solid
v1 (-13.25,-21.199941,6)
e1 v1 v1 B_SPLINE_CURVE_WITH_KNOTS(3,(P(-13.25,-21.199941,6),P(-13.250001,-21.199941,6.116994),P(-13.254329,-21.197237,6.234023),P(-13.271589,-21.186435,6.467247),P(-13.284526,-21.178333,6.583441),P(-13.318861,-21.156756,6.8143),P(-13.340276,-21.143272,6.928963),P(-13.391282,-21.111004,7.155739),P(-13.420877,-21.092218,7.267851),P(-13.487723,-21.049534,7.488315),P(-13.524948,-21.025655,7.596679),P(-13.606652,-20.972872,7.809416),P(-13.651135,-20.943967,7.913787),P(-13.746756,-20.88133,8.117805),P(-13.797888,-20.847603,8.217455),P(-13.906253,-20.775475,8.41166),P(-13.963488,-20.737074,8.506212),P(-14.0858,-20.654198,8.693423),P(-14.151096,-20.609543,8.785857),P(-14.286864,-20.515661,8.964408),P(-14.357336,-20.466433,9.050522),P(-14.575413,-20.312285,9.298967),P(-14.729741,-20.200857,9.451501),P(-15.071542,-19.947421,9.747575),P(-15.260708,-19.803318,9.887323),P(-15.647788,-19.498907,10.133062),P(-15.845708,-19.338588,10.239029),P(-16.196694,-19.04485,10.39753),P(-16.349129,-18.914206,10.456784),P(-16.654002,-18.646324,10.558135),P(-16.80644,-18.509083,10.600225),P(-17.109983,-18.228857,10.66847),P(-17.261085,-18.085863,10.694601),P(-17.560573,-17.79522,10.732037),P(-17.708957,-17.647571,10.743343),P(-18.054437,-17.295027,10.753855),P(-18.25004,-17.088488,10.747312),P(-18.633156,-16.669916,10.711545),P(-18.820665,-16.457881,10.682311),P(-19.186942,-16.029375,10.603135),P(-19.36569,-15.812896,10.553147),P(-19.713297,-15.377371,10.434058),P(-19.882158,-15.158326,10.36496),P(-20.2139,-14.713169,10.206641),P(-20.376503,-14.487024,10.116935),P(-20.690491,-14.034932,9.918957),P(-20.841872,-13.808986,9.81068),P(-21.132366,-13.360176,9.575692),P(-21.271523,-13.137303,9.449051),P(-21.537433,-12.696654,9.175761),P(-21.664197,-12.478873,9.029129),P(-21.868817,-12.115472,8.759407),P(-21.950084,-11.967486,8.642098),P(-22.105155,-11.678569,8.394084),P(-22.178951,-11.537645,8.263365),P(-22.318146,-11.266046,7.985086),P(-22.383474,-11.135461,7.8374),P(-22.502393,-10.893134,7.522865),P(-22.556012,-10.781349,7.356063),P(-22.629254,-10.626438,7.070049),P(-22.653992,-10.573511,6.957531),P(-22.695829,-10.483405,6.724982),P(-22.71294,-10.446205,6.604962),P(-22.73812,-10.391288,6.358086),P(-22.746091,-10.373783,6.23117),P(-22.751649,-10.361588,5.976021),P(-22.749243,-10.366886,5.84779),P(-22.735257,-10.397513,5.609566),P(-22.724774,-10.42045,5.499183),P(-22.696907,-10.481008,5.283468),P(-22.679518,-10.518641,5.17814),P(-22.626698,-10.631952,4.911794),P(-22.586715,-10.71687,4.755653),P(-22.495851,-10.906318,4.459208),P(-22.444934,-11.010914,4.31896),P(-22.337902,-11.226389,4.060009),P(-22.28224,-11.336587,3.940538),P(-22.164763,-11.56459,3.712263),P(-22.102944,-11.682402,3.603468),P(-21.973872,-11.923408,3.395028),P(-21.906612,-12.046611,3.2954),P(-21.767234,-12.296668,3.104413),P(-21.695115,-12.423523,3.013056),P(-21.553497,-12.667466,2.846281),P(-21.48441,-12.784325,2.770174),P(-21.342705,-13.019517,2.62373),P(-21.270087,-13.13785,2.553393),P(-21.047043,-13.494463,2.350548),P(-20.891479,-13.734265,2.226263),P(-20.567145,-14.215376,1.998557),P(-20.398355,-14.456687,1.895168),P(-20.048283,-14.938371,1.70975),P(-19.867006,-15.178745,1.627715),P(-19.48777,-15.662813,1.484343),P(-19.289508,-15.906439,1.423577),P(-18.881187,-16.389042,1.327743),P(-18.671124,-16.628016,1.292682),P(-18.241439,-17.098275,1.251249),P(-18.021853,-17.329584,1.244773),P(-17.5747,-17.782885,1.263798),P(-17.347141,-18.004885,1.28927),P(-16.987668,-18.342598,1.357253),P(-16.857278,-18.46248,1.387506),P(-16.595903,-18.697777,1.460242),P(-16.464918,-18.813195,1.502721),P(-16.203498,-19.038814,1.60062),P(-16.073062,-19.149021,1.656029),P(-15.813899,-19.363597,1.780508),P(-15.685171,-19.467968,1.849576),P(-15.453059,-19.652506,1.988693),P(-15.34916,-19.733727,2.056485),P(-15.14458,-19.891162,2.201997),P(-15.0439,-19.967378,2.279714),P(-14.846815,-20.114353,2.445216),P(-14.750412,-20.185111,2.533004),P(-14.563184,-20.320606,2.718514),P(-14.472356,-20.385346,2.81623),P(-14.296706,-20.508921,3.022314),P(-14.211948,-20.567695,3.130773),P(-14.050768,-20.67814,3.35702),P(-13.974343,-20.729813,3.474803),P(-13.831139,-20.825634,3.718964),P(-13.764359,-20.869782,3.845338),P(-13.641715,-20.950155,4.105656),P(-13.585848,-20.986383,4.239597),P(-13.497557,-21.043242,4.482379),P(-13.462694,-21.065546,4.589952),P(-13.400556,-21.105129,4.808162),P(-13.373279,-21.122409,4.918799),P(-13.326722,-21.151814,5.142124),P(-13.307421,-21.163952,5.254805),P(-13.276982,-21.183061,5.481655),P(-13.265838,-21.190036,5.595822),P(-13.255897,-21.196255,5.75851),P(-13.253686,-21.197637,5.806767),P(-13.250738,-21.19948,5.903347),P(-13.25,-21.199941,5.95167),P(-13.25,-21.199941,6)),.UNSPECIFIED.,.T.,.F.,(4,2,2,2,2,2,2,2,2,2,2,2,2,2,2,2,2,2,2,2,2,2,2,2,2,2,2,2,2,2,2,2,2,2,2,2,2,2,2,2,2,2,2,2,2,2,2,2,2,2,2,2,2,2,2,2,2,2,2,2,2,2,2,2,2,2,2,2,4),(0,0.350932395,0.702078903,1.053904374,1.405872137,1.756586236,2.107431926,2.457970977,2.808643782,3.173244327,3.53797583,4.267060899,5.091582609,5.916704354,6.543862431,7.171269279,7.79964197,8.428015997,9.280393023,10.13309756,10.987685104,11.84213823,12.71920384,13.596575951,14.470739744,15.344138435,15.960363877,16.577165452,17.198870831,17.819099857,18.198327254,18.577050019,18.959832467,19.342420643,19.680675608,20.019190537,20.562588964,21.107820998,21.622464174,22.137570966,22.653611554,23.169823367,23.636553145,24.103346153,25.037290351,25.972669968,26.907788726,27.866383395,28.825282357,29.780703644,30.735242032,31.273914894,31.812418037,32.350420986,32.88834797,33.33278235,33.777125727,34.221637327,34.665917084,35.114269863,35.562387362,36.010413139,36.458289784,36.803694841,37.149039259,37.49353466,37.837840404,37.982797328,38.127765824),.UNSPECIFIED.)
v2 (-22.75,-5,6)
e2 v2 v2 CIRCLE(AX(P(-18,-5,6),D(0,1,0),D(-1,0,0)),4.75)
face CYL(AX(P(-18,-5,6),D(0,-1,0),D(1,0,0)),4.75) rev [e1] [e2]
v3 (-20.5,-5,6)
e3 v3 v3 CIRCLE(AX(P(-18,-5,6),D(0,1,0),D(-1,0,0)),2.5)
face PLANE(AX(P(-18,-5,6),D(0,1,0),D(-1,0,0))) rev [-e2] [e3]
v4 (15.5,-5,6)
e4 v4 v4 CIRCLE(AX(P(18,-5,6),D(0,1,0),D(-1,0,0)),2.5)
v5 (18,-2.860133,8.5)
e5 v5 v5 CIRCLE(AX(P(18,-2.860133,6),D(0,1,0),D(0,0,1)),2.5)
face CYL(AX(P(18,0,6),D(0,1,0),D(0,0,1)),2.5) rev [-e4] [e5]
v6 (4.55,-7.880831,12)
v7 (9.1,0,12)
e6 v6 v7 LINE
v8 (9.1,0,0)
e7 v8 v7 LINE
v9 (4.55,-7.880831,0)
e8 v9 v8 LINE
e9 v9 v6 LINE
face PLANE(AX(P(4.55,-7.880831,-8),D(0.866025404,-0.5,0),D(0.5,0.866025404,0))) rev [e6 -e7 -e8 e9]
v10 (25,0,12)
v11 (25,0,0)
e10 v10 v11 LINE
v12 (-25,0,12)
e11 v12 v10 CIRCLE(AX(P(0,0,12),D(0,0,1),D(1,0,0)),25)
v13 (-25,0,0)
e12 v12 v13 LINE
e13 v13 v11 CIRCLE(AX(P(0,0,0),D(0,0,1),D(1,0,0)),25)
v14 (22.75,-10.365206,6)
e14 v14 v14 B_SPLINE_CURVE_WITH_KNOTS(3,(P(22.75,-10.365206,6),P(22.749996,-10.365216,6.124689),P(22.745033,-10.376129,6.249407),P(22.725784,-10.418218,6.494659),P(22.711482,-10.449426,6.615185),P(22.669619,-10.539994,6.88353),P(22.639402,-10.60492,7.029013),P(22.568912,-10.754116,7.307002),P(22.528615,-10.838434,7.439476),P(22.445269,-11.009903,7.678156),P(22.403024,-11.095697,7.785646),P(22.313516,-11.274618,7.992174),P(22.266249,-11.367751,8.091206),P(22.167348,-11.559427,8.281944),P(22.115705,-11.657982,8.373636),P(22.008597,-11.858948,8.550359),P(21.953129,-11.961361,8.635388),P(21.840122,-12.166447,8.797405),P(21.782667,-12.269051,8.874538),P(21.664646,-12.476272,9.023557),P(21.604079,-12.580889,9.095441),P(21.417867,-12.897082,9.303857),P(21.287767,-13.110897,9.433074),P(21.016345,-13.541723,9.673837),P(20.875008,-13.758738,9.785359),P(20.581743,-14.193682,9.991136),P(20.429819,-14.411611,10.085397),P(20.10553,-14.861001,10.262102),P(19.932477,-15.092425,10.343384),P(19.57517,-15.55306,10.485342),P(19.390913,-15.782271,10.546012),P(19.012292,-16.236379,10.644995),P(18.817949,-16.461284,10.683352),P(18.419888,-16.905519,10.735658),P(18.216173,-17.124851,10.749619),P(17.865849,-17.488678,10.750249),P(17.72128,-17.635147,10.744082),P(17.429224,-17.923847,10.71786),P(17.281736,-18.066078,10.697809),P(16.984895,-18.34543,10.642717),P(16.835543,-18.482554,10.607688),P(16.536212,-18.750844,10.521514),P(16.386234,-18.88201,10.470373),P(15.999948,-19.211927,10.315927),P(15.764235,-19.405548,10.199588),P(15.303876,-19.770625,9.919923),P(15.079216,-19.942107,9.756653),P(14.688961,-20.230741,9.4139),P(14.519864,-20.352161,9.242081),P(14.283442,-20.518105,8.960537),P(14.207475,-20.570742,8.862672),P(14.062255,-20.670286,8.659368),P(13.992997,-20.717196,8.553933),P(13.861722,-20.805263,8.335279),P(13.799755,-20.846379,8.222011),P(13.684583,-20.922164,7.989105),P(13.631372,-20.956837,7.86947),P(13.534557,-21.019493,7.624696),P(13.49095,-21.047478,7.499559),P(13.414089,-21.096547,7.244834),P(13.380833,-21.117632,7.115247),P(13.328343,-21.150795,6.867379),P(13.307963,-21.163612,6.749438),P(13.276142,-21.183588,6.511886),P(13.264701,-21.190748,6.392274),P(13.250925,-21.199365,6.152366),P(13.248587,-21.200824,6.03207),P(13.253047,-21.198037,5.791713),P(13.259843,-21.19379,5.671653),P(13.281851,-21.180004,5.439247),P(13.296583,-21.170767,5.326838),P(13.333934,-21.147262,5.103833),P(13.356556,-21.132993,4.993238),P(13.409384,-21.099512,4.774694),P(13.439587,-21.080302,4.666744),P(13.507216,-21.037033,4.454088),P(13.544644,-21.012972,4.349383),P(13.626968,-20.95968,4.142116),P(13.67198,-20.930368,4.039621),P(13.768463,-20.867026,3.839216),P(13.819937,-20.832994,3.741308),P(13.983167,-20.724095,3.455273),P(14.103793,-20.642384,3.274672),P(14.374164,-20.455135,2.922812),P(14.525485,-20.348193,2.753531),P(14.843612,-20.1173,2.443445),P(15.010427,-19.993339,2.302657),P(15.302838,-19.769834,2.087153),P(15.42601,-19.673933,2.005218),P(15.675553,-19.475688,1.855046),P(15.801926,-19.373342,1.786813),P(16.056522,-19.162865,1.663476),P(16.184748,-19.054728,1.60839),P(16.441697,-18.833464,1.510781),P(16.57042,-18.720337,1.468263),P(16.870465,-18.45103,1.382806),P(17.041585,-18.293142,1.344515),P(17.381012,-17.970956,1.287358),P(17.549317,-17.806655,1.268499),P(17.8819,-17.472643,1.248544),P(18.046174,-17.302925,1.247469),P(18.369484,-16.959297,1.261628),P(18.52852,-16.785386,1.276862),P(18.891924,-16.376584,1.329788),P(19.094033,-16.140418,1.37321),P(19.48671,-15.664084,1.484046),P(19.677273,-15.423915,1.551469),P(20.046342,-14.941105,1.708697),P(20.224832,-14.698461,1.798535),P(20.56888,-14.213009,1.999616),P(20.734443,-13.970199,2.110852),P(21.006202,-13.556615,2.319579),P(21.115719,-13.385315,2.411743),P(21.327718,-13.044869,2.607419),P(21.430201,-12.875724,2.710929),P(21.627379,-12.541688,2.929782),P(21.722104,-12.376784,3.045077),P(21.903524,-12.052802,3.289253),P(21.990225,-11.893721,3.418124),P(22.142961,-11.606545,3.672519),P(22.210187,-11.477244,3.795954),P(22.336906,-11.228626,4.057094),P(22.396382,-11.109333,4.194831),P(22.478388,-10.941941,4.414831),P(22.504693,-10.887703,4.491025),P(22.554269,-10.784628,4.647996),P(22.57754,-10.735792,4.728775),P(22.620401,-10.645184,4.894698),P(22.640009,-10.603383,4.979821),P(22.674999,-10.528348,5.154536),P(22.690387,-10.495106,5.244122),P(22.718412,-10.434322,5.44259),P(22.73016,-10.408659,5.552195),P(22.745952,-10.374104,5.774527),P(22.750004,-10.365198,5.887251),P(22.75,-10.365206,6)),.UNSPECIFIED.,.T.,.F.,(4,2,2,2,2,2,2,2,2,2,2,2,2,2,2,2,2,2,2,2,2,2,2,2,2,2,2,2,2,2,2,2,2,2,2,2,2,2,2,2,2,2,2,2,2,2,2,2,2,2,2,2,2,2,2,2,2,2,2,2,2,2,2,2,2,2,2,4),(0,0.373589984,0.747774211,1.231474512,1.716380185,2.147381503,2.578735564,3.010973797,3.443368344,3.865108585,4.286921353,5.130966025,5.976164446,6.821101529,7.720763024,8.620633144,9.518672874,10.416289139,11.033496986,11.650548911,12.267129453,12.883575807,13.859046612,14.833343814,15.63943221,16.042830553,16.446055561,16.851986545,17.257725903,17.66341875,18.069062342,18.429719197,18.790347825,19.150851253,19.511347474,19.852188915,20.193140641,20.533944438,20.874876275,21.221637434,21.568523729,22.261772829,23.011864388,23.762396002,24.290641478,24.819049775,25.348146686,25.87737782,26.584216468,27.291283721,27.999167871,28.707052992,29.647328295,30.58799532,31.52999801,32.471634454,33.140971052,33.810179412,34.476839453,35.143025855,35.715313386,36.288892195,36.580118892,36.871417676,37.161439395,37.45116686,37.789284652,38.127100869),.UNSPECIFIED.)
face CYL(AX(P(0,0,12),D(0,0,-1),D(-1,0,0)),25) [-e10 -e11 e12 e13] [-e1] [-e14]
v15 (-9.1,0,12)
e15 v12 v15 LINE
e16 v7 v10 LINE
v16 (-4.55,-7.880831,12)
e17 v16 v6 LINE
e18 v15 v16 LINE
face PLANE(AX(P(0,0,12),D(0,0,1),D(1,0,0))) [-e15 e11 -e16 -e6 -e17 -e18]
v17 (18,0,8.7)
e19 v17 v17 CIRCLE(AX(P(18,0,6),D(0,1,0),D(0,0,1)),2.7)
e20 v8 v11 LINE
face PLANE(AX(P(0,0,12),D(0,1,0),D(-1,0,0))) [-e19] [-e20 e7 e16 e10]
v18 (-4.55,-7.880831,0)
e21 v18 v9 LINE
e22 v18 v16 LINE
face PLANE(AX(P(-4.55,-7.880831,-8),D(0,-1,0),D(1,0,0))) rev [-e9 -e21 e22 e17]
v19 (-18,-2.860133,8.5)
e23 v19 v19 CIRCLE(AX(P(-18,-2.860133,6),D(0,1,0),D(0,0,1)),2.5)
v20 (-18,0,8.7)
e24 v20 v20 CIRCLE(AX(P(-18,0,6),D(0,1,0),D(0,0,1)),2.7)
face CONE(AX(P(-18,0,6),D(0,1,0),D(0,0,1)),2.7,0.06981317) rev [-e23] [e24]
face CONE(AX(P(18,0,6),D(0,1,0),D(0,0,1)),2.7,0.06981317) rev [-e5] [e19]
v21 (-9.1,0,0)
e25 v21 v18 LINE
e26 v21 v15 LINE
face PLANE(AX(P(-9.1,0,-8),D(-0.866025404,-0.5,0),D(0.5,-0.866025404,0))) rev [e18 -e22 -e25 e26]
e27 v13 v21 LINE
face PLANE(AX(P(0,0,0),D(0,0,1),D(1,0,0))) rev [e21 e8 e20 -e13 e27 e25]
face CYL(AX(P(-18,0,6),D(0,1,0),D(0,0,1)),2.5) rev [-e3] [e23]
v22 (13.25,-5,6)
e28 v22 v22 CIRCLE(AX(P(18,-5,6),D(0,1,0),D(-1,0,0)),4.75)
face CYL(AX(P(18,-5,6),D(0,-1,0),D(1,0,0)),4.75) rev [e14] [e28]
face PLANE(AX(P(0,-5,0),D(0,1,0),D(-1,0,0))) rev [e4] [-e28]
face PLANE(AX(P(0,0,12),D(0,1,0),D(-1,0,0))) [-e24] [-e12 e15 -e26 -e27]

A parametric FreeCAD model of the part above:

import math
import FreeCAD as App
import Part
import Sketcher
from FreeCAD import Vector
Q = App.Units.Quantity


def add_polygon(sketch, points):
    """Adds a closed chain of lines whose ends are joined by coincident constraints."""
    first, n = sketch.GeometryCount, len(points)
    for a, b in zip(points, points[1:] + points[:1]):
        sketch.addGeometry(Part.LineSegment(App.Vector(*a, 0), App.Vector(*b, 0)), False)
    for i in range(n):
        sketch.addConstraint(Sketcher.Constraint("Coincident", first + i, 2, first + (i + 1) % n, 1))

doc = App.newDocument("Part")
body = doc.addObject("PartDesign::Body", "Body")

# Sketch on XY plane
sketch1 = body.newObject("Sketcher::SketchObject", "Sketch")
sketch1.AttachmentSupport = (doc.getObject("XY_Plane"), [""])
sketch1.MapMode = "FlatFace"
sketch1.addGeometry(Part.ArcOfCircle(Part.Circle(Vector(0, 0, 0), Vector(0, 0, 1), 25), math.radians(180), math.radians(360)), False)
sketch1.addGeometry(Part.LineSegment(Vector(25, 0, 0), Vector(-25, 0, 0)), False)
sketch1.addConstraint(Sketcher.Constraint("Coincident", 0, 1, 1, 2))
sketch1.addConstraint(Sketcher.Constraint("Coincident", 1, 1, 0, 2))
sketch1.addConstraint(Sketcher.Constraint("Horizontal", 1))
sketch1.addConstraint(Sketcher.Constraint("Coincident", 0, 3, -1, 1))
sketch1.addConstraint(Sketcher.Constraint("PointOnObject", 0, 1, -1))
sketch1.addConstraint(Sketcher.Constraint("Radius", 0, 25.0))
pad1 = body.newObject("PartDesign::Pad", "Pad")
pad1.Profile = sketch1
pad1.Length = 12

# Sketch on XZ plane
sketch2 = body.newObject("Sketcher::SketchObject", "Sketch001")
sketch2.AttachmentSupport = (doc.getObject("XZ_Plane"), [""])
sketch2.MapMode = "FlatFace"
sketch2.AttachmentOffset = App.Placement(Vector(0, 0, 40), App.Rotation())
sketch2.addGeometry(Part.Circle(Vector(18, 6, 0), Vector(0, 0, 1), 4.75), False)
sketch2.addGeometry(Part.Circle(Vector(-18, 6, 0), Vector(0, 0, 1), 4.75), False)
sketch2.addConstraint(Sketcher.Constraint("Equal", 0, 1))
sketch2.addConstraint(Sketcher.Constraint("Symmetric", 0, 3, 1, 3, -2))
sketch2.addConstraint(Sketcher.Constraint("Diameter", 0, 9.5))
sketch2.addConstraint(Sketcher.Constraint("DistanceX", -1, 1, 0, 3, 18.0))
sketch2.addConstraint(Sketcher.Constraint("DistanceY", -1, 1, 0, 3, 6.0))
pocket1 = body.newObject("PartDesign::Pocket", "Pocket")
pocket1.Profile = sketch2
pocket1.Length = 35

# Sketch on XZ plane
sketch3 = body.newObject("Sketcher::SketchObject", "Sketch002")
sketch3.AttachmentSupport = (doc.getObject("XZ_Plane"), [""])
sketch3.MapMode = "FlatFace"
sketch3.AttachmentOffset = App.Placement(Vector(0, 0, 5), App.Rotation())
sketch3.addGeometry(Part.Circle(Vector(18, 6, 0), Vector(0, 0, 1), 2.05), False)
sketch3.addGeometry(Part.Circle(Vector(-18, 6, 0), Vector(0, 0, 1), 2.05), False)
sketch3.addConstraint(Sketcher.Constraint("Equal", 0, 1))
sketch3.addConstraint(Sketcher.Constraint("Symmetric", 0, 3, 1, 3, -2))
sketch3.addConstraint(Sketcher.Constraint("Diameter", 0, 4.1))
sketch3.addConstraint(Sketcher.Constraint("DistanceX", -1, 1, 0, 3, 18.0))
sketch3.addConstraint(Sketcher.Constraint("DistanceY", -1, 1, 0, 3, 6.0))
pocket2 = body.newObject("PartDesign::Pocket", "Pocket001")
pocket2.Profile = sketch3
pocket2.Length = 35

# Sketch on XY plane
sketch4 = body.newObject("Sketcher::SketchObject", "Sketch003")
sketch4.AttachmentSupport = (doc.getObject("XY_Plane"), [""])
sketch4.MapMode = "FlatFace"
sketch4.AttachmentOffset = App.Placement(Vector(0, 0, 12), App.Rotation())
add_polygon(sketch4, [(9.1, 0), (4.55, 7.880831), (-4.55, 7.880831), (-9.1, 0), (-4.55, -7.880831), (4.55, -7.880831)])  # lines 0-5
sketch4.addConstraint(Sketcher.Constraint("Horizontal", 1))
sketch4.addConstraint(Sketcher.Constraint("Horizontal", 4))
sketch4.addConstraint(Sketcher.Constraint("Symmetric", 0, 2, 3, 2, -1, 1))
sketch4.addConstraint(Sketcher.Constraint("Symmetric", 2, 2, 5, 2, -1, 1))
sketch4.addConstraint(Sketcher.Constraint("PointOnObject", 2, 2, -1))
sketch4.addConstraint(Sketcher.Constraint("Parallel", 2, 5))
sketch4.addConstraint(Sketcher.Constraint("Vertical", 1, 2, 3, 2))
sketch4.addConstraint(Sketcher.Constraint("Angle", 0, Q("120 deg")))
sketch4.addConstraint(Sketcher.Constraint("DistanceX", 1, 2, 1, 1, 9.1))
sketch4.addConstraint(Sketcher.Constraint("Distance", 0, 9.1))
pocket3 = body.newObject("PartDesign::Pocket", "Pocket002")
pocket3.Profile = sketch4
pocket3.Length = 20

# Sketch on YZ plane
sketch5 = body.newObject("Sketcher::SketchObject", "Sketch004")
sketch5.AttachmentSupport = (doc.getObject("YZ_Plane"), [""])
sketch5.MapMode = "FlatFace"
sketch5.AttachmentOffset = App.Placement(Vector(0, 0, -18), App.Rotation())
add_polygon(sketch5, [(-25, 6), (0, 6), (0, 8.7), (-2.860133, 8.5), (-25, 8.5)])  # lines 0-4
sketch5.addGeometry(Part.LineSegment(Vector(0, 6, 0), Vector(-25, 6, 0)), True)  # axis
sketch5.addConstraint(Sketcher.Constraint("Horizontal", 0))
sketch5.addConstraint(Sketcher.Constraint("Vertical", 1))
sketch5.addConstraint(Sketcher.Constraint("Horizontal", 3))
sketch5.addConstraint(Sketcher.Constraint("Vertical", 4))
sketch5.addConstraint(Sketcher.Constraint("Horizontal", 5))
sketch5.addConstraint(Sketcher.Constraint("Coincident", 5, 1, 0, 2))
sketch5.addConstraint(Sketcher.Constraint("PointOnObject", 0, 2, -2))
sketch5.addConstraint(Sketcher.Constraint("Vertical", 3, 2, 5, 2))
sketch5.addConstraint(Sketcher.Constraint("DistanceX", 0, 1, 0, 2, 25.0))
sketch5.addConstraint(Sketcher.Constraint("Angle", 2, Q("-176 deg")))
sketch5.addConstraint(Sketcher.Constraint("DistanceY", 1, 1, 1, 2, 2.7))
sketch5.addConstraint(Sketcher.Constraint("DistanceY", 4, 2, 4, 1, 2.5))
sketch5.addConstraint(Sketcher.Constraint("DistanceY", -1, 1, 0, 2, 6.0))
groove = body.newObject("PartDesign::Groove", "Groove")
groove.Profile = sketch5
groove.ReferenceAxis = (sketch5, ["Axis0"])
groove.Angle = 360
doc.recompute()

linearpattern = body.newObject("PartDesign::LinearPattern", "LinearPattern")
linearpattern.Originals = [groove]
linearpattern.Direction = (doc.getObject("X_Axis"), [""])
linearpattern.Mode = "offset"
linearpattern.Offset = 36
linearpattern.Occurrences = 2
body.Tip = linearpattern

doc.recompute()
